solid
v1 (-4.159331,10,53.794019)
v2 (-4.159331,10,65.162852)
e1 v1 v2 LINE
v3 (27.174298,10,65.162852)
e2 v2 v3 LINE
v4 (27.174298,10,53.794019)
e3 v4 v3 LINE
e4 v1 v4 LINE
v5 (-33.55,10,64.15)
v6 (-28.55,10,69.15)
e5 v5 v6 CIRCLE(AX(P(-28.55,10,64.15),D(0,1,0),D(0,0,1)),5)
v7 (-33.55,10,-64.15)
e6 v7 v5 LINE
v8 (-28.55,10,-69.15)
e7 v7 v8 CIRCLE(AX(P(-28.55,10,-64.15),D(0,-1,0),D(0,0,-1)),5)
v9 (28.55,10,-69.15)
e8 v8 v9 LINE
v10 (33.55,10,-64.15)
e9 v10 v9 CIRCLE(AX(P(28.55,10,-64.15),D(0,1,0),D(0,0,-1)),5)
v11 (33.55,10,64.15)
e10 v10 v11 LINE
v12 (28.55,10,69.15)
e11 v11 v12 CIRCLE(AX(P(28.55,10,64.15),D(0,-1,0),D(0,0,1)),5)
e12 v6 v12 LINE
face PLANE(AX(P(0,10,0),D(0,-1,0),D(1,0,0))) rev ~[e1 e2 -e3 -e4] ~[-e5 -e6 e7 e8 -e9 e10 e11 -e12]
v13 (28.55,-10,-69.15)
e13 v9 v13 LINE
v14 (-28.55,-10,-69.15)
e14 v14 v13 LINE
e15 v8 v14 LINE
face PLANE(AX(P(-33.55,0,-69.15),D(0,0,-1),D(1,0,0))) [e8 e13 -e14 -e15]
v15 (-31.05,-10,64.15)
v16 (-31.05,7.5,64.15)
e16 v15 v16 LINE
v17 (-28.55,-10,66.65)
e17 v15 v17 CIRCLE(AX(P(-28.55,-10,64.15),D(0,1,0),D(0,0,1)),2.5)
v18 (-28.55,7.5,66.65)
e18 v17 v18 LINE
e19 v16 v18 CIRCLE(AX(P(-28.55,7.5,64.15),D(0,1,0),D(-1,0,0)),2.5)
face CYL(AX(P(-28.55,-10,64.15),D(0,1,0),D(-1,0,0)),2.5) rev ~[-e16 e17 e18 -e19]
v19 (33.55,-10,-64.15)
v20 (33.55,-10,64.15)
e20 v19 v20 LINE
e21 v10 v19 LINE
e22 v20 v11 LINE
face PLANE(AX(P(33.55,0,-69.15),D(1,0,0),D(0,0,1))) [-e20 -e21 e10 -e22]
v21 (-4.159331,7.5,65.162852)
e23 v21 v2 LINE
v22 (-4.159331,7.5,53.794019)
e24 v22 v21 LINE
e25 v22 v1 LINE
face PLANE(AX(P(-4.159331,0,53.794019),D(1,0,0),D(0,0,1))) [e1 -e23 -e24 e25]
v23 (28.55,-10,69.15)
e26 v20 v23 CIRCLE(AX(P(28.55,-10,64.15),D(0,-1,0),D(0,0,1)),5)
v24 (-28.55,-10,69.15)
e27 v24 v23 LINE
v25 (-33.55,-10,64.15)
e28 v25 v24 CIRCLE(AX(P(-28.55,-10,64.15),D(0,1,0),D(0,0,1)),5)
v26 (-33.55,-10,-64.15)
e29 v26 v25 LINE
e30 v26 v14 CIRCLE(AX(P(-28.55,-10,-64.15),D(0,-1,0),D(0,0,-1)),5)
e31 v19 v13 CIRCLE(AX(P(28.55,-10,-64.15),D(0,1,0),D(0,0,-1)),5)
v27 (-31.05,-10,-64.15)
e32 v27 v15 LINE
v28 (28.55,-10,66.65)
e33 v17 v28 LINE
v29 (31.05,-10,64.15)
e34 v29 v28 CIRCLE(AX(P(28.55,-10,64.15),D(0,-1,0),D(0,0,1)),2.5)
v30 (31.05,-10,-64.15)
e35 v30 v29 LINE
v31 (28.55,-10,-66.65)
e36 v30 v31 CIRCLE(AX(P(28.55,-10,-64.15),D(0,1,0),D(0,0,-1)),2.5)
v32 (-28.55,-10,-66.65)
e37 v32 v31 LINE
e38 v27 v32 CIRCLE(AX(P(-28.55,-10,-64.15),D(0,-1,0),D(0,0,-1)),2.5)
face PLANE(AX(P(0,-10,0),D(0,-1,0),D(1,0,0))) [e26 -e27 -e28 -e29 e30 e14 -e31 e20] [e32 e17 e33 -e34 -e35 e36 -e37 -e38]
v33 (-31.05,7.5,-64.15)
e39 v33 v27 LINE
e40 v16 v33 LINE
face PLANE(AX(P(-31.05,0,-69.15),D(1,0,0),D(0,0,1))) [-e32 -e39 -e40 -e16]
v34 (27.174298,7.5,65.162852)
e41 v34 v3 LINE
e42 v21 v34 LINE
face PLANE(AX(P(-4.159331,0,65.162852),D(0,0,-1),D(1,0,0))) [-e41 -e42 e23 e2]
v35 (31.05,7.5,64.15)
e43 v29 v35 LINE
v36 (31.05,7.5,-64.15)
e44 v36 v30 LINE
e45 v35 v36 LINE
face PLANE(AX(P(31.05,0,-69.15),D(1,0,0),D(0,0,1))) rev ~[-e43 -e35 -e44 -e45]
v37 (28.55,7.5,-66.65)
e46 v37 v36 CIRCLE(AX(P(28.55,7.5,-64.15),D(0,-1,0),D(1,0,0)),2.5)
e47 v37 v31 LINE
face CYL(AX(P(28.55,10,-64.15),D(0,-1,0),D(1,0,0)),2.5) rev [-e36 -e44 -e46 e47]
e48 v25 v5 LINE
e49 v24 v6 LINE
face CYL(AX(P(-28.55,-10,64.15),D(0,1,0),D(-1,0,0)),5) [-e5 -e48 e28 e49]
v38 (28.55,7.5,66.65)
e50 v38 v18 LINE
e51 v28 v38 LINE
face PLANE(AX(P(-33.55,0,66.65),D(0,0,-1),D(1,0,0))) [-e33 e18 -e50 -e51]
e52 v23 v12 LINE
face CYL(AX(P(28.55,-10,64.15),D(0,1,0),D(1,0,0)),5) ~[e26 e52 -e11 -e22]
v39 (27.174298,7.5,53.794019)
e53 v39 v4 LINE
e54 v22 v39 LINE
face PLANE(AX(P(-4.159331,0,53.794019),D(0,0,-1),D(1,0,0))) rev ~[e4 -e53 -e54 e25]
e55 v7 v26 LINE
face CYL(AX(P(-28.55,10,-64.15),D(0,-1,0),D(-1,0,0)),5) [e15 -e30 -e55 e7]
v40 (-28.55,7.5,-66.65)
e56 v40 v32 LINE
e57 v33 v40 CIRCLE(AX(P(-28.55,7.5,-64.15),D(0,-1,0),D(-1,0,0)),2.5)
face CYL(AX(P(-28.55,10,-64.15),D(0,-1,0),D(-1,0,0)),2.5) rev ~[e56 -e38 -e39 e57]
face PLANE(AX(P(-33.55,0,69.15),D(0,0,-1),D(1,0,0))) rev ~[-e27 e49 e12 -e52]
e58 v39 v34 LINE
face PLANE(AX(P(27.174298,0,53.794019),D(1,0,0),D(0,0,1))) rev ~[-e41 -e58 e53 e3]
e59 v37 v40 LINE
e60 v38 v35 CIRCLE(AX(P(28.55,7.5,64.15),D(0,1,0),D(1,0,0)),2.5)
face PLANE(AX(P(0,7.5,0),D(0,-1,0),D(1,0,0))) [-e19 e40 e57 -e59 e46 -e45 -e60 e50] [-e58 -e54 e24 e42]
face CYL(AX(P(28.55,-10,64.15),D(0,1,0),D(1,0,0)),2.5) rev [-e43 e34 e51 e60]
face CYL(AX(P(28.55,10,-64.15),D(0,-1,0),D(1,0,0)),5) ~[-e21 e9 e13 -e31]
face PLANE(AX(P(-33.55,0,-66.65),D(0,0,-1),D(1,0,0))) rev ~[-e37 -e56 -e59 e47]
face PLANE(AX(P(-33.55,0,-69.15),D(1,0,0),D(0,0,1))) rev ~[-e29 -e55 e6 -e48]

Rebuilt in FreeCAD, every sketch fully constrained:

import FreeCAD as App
import Part
import Sketcher


def edges_at(feature, points):
    """Names of the edges that pass closest to the given points."""
    edges = feature.Shape.Edges
    near = lambda p: min(range(len(edges)), key=lambda i: edges[i].distToShape(Part.Vertex(*p))[0])
    return sorted({f"Edge{near(p) + 1}" for p in points})


def faces_at(feature, points):
    """Names of the faces that lie closest to the given points."""
    faces = feature.Shape.Faces
    near = lambda p: min(range(len(faces)), key=lambda i: faces[i].distToShape(Part.Vertex(*p))[0])
    return sorted({f"Face{near(p) + 1}" for p in points})

doc = App.newDocument("Part")
body = doc.addObject("PartDesign::Body", "Body")

sketch1 = body.newObject("Sketcher::SketchObject", "Sketch")
sketch1.AttachmentSupport = (doc.getObject("XZ_Plane"), [""])
sketch1.MapMode = "FlatFace"
sketch1.addGeometry(Part.LineSegment(App.Vector(-34, 69, 0), App.Vector(-34, -69, 0)), False)
sketch1.addGeometry(Part.LineSegment(App.Vector(-34, -69, 0), App.Vector(34, -69, 0)), False)
sketch1.addGeometry(Part.LineSegment(App.Vector(34, -69, 0), App.Vector(34, 69, 0)), False)
sketch1.addGeometry(Part.LineSegment(App.Vector(34, 69, 0), App.Vector(-34, 69, 0)), False)
sketch1.addConstraint(Sketcher.Constraint("Coincident", 0, 2, 1, 1))
sketch1.addConstraint(Sketcher.Constraint("Coincident", 1, 2, 2, 1))
sketch1.addConstraint(Sketcher.Constraint("Coincident", 2, 2, 3, 1))
sketch1.addConstraint(Sketcher.Constraint("Coincident", 3, 2, 0, 1))
sketch1.addConstraint(Sketcher.Constraint("Vertical", 0))
sketch1.addConstraint(Sketcher.Constraint("Horizontal", 1))
sketch1.addConstraint(Sketcher.Constraint("Vertical", 2))
sketch1.addConstraint(Sketcher.Constraint("Horizontal", 3))
sketch1.addConstraint(Sketcher.Constraint("Symmetric", 0, 2, 2, 2, -1, 1))
sketch1.addConstraint(Sketcher.Constraint("DistanceX", 1, 1, 1, 2, 67.1))
sketch1.addConstraint(Sketcher.Constraint("DistanceY", 0, 2, 0, 1, 138.3))
pad1 = body.newObject("PartDesign::Pad", "Pad")
pad1.Profile = sketch1
pad1.Length = 20
pad1.Midplane = True
doc.recompute()

fillet = body.newObject("PartDesign::Fillet", "Fillet")
fillet.Base = (pad1, edges_at(pad1, [
    (-33.55, 0, 69.15),
    (33.55, 0, 69.15),
    (33.55, 0, -69.15),
    (-33.55, 0, -69.15),
]))
fillet.Radius = 5
doc.recompute()

thickness = body.newObject("PartDesign::Thickness", "Thickness")
thickness.Base = (fillet, faces_at(fillet, [(0, -10, 0)]))
thickness.Value = 2.5
thickness.Reversed = True
thickness.Join = "Arc"

sketch2 = body.newObject("Sketcher::SketchObject", "Sketch001")
sketch2.AttachmentSupport = (doc.getObject("XZ_Plane"), [""])
sketch2.MapMode = "FlatFace"
sketch2.addGeometry(Part.LineSegment(App.Vector(-4, 65, 0), App.Vector(-4, 54, 0)), False)
sketch2.addGeometry(Part.LineSegment(App.Vector(-4, 54, 0), App.Vector(27, 54, 0)), False)
sketch2.addGeometry(Part.LineSegment(App.Vector(27, 54, 0), App.Vector(27, 65, 0)), False)
sketch2.addGeometry(Part.LineSegment(App.Vector(27, 65, 0), App.Vector(-4, 65, 0)), False)
sketch2.addConstraint(Sketcher.Constraint("Coincident", 0, 2, 1, 1))
sketch2.addConstraint(Sketcher.Constraint("Coincident", 1, 2, 2, 1))
sketch2.addConstraint(Sketcher.Constraint("Coincident", 2, 2, 3, 1))
sketch2.addConstraint(Sketcher.Constraint("Coincident", 3, 2, 0, 1))
sketch2.addConstraint(Sketcher.Constraint("Vertical", 0))
sketch2.addConstraint(Sketcher.Constraint("Horizontal", 1))
sketch2.addConstraint(Sketcher.Constraint("Vertical", 2))
sketch2.addConstraint(Sketcher.Constraint("Horizontal", 3))
sketch2.addConstraint(Sketcher.Constraint("DistanceX", 1, 1, 1, 2, 31.333629))
sketch2.addConstraint(Sketcher.Constraint("DistanceY", 0, 2, 0, 1, 11.368833))
sketch2.addConstraint(Sketcher.Constraint("DistanceX", 0, 2, -1, 1, 4.159331))
sketch2.addConstraint(Sketcher.Constraint("DistanceY", -1, 1, 0, 2, 53.794019))
pocket1 = body.newObject("PartDesign::Pocket", "Pocket")
pocket1.Profile = sketch2
pocket1.Length = 25

doc.recompute()
